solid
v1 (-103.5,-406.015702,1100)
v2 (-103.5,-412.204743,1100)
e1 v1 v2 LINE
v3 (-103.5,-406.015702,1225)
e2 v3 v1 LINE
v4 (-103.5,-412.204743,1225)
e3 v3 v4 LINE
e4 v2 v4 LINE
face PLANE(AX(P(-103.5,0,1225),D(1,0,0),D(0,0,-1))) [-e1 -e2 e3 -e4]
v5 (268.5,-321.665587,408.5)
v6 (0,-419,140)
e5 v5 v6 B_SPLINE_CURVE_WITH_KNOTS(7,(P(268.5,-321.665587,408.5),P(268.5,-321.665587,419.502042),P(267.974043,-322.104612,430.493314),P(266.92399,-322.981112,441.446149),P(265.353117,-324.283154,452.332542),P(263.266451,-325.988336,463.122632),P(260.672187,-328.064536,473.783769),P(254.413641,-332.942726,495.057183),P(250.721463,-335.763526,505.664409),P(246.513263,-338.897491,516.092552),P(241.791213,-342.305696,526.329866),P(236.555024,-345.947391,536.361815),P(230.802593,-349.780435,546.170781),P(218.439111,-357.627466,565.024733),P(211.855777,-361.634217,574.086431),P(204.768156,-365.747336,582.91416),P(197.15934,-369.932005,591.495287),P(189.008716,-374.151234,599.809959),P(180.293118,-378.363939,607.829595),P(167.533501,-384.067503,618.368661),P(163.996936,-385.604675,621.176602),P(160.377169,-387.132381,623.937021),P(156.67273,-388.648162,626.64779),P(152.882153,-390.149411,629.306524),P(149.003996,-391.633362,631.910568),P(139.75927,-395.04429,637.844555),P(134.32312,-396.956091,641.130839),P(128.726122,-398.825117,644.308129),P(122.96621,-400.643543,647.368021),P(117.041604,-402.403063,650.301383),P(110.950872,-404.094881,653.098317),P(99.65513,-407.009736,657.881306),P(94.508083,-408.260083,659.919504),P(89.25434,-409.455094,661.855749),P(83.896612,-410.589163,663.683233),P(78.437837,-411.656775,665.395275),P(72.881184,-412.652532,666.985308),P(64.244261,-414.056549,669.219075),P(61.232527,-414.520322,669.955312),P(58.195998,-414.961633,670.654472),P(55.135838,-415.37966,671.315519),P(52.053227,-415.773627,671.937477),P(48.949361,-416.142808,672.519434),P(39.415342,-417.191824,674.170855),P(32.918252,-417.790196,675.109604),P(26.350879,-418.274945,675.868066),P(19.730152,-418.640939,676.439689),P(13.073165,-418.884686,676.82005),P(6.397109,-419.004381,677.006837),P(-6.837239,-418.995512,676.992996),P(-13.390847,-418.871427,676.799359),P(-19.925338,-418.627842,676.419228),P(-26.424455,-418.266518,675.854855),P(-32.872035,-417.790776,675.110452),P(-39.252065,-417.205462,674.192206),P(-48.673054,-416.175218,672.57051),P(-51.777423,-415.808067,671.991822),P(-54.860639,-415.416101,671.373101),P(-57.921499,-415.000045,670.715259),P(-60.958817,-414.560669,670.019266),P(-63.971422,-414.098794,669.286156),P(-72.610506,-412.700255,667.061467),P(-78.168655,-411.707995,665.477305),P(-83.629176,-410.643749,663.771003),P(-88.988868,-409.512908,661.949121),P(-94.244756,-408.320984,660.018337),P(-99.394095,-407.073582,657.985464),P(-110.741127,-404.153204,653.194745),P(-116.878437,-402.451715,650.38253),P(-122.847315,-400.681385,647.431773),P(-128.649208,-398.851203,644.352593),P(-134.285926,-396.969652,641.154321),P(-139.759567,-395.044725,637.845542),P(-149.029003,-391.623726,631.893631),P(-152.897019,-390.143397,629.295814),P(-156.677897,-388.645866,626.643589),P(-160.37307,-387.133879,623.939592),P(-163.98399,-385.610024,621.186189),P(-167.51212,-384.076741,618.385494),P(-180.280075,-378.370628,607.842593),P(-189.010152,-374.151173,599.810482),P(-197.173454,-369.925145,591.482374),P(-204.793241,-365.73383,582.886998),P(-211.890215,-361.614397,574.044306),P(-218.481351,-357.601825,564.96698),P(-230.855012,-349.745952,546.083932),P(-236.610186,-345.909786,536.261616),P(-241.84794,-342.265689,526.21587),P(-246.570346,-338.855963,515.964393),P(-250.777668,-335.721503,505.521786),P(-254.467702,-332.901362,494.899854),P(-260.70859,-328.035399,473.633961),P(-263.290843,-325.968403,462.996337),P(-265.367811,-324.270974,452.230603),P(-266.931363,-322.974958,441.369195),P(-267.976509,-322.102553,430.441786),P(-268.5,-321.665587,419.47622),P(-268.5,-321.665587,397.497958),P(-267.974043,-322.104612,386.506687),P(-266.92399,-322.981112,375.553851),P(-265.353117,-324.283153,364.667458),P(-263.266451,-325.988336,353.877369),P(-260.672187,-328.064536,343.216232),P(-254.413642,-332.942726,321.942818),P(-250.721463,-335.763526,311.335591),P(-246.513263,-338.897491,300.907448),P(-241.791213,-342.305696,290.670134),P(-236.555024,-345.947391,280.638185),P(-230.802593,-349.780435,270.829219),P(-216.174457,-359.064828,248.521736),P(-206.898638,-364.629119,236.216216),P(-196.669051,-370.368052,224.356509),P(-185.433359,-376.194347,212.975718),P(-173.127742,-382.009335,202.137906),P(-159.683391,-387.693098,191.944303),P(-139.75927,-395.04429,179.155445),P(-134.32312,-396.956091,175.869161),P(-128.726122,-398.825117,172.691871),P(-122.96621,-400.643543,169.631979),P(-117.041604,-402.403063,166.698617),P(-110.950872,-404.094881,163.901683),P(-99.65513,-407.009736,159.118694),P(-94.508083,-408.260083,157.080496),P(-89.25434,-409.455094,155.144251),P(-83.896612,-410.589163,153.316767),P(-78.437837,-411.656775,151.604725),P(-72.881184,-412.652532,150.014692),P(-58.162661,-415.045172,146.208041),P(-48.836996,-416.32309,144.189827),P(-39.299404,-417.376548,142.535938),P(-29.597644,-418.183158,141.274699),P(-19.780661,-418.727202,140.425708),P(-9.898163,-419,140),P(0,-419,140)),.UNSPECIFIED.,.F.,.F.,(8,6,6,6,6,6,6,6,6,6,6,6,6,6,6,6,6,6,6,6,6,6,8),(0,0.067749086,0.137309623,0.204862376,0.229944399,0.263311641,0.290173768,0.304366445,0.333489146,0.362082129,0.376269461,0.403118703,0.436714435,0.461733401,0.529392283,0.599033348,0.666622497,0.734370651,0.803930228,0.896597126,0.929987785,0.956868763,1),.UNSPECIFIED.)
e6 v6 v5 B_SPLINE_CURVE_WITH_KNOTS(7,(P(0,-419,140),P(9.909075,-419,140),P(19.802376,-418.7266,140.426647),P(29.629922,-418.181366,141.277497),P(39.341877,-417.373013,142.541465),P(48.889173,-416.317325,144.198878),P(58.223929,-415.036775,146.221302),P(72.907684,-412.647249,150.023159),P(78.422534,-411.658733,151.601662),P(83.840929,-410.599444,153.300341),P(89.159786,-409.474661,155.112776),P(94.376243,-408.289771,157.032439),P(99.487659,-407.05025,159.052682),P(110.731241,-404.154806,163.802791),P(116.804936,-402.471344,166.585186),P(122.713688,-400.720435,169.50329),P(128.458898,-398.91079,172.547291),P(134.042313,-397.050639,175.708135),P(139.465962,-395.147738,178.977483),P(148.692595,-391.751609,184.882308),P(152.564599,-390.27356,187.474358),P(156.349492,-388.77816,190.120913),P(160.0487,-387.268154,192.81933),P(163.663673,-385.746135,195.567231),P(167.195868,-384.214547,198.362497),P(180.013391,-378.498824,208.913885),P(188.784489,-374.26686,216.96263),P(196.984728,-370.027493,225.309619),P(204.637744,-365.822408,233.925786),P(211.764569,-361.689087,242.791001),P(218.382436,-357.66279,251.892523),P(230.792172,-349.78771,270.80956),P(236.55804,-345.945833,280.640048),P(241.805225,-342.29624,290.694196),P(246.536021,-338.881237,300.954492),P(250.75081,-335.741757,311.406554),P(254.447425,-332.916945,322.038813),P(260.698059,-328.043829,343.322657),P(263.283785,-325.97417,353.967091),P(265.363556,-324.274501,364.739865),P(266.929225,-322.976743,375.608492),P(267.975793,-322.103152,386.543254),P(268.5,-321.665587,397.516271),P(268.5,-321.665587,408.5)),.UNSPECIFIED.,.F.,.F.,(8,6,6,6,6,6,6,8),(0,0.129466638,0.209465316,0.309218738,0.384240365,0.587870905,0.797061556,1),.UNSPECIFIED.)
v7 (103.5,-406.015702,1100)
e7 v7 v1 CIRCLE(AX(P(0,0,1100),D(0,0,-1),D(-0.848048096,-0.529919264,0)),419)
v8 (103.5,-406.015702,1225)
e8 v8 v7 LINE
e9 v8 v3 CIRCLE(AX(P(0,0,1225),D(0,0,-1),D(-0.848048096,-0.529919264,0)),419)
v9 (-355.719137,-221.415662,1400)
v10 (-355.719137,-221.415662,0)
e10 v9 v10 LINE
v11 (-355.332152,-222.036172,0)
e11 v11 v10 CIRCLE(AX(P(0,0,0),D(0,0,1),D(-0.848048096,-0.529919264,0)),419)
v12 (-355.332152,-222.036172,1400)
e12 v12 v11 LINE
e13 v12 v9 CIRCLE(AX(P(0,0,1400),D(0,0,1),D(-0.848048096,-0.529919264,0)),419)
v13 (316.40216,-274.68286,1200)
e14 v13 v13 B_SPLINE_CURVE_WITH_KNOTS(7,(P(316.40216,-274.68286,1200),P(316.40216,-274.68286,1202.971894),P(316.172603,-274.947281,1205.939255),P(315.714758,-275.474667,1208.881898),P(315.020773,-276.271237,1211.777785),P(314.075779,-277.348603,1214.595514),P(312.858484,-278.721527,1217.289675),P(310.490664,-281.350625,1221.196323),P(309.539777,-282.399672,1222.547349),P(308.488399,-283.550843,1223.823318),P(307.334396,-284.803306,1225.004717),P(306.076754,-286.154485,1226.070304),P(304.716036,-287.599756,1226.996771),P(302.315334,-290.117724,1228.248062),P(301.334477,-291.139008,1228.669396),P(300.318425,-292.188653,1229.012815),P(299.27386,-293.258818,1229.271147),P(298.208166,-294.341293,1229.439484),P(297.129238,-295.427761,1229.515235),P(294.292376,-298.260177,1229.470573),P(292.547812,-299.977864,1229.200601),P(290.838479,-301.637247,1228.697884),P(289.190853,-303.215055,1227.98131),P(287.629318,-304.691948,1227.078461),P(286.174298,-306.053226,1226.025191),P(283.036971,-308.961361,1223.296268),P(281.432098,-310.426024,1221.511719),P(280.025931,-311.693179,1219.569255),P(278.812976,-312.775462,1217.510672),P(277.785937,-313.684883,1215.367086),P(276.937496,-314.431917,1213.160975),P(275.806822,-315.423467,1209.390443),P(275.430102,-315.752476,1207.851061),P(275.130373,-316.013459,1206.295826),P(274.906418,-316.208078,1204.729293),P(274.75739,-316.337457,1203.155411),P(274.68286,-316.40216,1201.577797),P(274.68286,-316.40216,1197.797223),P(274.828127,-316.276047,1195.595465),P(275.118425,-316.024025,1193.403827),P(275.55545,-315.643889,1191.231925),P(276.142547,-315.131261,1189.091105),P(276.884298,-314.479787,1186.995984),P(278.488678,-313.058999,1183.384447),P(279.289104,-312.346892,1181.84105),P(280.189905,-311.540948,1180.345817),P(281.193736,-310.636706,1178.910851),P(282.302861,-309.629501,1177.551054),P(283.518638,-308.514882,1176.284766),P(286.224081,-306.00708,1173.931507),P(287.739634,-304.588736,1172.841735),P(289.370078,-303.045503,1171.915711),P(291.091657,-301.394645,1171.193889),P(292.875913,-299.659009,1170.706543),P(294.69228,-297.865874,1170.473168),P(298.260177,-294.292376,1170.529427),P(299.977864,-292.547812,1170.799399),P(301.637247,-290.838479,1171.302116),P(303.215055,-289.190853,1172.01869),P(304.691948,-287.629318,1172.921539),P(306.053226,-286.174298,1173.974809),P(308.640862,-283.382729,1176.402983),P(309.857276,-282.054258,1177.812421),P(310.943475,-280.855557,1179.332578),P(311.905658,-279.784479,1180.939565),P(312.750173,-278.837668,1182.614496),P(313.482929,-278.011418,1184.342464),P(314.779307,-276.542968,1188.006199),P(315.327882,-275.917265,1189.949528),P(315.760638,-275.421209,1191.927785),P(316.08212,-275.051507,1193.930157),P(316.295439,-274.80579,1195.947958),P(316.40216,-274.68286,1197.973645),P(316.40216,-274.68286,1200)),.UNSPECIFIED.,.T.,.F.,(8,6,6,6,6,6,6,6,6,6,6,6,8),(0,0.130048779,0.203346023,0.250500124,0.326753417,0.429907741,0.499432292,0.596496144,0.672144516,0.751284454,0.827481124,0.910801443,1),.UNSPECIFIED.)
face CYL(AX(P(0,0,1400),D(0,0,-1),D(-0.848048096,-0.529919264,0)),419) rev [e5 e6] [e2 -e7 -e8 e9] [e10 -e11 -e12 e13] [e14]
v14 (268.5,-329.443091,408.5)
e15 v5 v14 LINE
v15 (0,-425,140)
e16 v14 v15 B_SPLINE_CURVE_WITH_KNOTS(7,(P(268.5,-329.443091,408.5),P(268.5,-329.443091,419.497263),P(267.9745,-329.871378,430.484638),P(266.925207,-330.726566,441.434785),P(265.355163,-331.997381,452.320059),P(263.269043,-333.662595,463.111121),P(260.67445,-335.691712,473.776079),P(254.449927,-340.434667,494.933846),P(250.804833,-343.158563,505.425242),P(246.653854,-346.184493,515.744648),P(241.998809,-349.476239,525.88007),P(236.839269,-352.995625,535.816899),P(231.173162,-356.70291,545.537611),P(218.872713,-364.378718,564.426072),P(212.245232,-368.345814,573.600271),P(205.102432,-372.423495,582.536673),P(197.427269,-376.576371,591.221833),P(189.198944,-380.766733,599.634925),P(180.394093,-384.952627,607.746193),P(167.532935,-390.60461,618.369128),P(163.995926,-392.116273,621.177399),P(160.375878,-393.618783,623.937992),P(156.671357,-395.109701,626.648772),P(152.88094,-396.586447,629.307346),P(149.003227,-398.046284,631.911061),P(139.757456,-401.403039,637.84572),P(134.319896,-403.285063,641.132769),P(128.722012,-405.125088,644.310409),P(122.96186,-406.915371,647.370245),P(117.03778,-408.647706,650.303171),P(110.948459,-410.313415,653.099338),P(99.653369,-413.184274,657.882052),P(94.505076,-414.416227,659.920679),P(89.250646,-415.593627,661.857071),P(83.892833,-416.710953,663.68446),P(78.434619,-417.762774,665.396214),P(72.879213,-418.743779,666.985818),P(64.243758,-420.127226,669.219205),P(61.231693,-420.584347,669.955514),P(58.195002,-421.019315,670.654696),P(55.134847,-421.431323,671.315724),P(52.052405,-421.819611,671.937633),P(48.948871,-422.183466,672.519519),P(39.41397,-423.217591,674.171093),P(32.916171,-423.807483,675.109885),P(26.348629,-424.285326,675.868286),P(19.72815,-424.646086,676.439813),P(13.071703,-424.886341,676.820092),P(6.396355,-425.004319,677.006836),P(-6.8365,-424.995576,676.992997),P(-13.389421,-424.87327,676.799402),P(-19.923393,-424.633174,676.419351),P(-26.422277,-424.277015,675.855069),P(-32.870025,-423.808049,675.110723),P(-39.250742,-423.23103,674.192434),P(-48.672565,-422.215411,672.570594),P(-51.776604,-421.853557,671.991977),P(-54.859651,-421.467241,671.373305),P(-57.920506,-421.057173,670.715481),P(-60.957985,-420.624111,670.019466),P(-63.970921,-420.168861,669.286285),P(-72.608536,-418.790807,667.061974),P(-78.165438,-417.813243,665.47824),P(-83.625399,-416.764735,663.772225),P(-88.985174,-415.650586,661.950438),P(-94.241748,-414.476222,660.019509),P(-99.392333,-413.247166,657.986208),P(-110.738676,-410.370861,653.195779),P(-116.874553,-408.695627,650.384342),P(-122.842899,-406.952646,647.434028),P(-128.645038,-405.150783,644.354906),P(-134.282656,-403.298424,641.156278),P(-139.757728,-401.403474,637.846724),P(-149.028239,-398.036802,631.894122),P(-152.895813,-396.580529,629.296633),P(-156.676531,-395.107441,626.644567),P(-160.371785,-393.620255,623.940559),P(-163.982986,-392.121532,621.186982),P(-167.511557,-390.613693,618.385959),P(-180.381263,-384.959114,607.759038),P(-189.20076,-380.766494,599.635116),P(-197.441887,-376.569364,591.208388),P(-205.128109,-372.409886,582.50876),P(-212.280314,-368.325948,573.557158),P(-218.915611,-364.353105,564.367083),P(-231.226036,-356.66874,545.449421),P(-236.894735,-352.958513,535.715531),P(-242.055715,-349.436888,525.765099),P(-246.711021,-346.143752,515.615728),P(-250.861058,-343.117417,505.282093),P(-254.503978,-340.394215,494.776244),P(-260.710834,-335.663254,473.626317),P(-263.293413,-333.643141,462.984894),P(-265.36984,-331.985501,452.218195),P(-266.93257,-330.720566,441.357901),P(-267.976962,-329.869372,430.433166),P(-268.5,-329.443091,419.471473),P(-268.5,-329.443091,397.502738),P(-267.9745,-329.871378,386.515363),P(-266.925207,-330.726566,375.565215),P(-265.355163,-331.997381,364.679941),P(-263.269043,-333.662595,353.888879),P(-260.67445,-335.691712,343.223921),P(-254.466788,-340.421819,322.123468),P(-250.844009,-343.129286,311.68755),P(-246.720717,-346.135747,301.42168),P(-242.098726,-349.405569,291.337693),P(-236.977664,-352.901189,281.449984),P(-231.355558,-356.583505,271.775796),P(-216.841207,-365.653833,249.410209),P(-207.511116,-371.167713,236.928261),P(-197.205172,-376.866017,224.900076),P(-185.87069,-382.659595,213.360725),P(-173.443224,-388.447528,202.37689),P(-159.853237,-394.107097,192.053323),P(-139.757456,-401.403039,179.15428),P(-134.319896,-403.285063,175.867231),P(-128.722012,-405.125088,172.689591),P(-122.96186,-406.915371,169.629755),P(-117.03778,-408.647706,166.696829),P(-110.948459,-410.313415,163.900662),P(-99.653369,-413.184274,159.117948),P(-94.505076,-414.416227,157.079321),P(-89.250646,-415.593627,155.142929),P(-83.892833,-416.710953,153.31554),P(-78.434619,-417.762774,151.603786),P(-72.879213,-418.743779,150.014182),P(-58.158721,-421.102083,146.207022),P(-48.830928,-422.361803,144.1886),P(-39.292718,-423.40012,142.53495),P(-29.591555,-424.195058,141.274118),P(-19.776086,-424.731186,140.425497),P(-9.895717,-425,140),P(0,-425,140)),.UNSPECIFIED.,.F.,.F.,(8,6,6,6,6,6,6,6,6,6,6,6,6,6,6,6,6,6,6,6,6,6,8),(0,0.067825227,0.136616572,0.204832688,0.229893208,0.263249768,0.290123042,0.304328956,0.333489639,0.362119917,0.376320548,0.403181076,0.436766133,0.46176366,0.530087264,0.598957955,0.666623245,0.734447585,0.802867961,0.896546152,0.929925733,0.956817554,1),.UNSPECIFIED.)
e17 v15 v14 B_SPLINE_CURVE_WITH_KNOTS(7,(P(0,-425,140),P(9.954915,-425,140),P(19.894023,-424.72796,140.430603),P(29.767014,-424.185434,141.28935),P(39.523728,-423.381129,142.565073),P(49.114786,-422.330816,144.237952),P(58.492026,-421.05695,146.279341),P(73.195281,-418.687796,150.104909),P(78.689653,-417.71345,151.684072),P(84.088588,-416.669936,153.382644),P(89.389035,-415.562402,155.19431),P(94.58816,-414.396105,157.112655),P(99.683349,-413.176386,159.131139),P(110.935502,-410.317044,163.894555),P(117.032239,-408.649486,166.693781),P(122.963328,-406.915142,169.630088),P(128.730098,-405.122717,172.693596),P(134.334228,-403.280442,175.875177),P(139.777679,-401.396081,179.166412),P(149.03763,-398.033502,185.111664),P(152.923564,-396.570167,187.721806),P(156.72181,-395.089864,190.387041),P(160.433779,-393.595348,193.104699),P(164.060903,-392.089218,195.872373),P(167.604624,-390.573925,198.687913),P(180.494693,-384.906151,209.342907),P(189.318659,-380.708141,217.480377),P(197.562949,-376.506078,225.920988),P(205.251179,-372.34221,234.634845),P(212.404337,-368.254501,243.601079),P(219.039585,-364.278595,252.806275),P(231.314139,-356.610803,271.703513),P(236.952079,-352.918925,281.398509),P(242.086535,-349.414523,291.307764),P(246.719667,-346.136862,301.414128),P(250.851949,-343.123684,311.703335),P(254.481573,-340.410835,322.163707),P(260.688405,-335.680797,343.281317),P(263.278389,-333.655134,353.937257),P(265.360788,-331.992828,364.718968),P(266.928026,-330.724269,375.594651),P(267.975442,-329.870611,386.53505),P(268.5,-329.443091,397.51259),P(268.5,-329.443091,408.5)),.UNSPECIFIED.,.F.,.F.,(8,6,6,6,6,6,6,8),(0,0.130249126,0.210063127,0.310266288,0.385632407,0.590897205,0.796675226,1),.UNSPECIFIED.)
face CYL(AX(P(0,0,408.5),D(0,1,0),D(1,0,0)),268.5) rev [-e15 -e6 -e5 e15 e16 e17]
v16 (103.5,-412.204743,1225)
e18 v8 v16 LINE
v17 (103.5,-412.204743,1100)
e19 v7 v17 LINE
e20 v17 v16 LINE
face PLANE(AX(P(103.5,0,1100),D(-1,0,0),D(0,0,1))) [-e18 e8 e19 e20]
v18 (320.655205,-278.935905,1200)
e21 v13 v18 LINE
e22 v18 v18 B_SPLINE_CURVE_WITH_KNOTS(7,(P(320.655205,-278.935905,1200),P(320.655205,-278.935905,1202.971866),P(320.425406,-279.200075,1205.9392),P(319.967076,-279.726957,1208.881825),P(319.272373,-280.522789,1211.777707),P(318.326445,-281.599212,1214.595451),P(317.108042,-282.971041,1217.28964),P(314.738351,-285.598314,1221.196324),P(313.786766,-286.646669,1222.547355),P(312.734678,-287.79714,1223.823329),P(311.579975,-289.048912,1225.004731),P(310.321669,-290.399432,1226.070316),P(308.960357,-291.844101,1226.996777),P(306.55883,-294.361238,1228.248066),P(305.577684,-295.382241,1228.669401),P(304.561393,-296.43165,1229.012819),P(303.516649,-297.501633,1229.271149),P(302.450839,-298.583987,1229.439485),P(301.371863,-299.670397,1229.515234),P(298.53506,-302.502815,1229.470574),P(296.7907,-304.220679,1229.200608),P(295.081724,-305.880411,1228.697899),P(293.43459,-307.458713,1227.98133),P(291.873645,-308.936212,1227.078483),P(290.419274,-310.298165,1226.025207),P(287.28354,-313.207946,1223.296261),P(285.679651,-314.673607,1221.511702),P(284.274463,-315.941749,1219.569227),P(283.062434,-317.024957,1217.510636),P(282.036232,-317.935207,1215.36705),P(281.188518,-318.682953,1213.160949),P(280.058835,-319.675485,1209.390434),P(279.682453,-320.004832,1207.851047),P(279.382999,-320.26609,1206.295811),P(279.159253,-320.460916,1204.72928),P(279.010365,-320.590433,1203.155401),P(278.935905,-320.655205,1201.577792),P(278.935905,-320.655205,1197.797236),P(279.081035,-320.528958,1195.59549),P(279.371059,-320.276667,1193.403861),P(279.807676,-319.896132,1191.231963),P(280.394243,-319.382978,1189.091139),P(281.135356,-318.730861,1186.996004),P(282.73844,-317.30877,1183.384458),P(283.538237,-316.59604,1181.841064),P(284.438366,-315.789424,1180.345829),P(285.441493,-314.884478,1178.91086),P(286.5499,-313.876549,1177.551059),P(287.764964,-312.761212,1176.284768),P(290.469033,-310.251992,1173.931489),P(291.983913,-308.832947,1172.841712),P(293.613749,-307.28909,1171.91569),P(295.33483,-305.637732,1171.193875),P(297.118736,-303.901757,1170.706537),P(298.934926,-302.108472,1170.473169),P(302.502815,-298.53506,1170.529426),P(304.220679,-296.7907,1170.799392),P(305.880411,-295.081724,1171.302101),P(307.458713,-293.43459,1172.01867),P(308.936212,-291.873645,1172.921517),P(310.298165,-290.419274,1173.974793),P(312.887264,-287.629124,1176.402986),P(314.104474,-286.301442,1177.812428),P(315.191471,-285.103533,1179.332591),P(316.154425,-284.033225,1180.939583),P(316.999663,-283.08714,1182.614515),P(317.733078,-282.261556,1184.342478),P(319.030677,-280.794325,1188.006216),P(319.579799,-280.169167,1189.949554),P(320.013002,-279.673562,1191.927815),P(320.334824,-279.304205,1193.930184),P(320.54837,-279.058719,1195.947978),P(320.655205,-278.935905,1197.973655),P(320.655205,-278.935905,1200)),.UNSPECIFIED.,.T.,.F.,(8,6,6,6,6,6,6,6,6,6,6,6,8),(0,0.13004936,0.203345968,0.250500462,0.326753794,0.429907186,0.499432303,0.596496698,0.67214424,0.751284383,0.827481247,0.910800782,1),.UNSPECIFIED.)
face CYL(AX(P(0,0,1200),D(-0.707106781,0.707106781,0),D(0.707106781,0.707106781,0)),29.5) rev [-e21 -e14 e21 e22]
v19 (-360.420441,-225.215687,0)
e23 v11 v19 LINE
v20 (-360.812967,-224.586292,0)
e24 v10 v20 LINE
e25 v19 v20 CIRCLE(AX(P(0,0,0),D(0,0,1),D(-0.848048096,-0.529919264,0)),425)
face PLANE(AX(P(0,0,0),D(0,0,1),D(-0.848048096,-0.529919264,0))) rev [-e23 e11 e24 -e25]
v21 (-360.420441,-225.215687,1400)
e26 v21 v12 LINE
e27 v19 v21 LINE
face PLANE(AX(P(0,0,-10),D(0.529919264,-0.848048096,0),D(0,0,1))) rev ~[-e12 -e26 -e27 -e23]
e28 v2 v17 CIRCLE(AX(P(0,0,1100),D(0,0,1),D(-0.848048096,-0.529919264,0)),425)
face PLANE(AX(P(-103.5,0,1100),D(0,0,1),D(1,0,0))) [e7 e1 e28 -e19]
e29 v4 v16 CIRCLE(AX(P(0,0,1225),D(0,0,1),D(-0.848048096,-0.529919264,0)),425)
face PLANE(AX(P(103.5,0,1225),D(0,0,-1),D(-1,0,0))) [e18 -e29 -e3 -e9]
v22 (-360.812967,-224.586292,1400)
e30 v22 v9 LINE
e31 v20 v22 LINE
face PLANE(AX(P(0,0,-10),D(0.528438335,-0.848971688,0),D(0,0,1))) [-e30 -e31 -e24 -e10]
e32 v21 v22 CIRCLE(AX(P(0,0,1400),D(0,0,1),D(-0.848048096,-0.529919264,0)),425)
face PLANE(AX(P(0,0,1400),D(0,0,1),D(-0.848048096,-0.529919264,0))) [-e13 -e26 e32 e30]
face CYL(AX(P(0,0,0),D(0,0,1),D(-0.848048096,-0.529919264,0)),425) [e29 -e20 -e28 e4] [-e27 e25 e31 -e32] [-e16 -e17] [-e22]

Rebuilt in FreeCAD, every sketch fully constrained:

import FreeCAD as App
import Part
import Sketcher


def add_polygon(sketch, points):
    """Adds a closed chain of lines whose ends are joined by coincident constraints."""
    first, n = sketch.GeometryCount, len(points)
    for a, b in zip(points, points[1:] + points[:1]):
        sketch.addGeometry(Part.LineSegment(App.Vector(*a, 0), App.Vector(*b, 0)), False)
    for i in range(n):
        sketch.addConstraint(Sketcher.Constraint("Coincident", first + i, 2, first + (i + 1) % n, 1))

doc = App.newDocument("Part")
body = doc.addObject("PartDesign::Body", "Body")

# Sketch on an angled plane
sketch1 = body.newObject("Sketcher::SketchObject", "Sketch")
sketch1.Placement = App.Placement(App.Vector(0, 0, -10), App.Rotation(App.Vector(0, 0, 1), App.Vector(-0.848048096, -0.529919264, 0), App.Vector(0.529919264, -0.848048096, 0), "ZXY"))
add_polygon(sketch1, [(10, 419), (1410, 419), (1410, 425), (10, 425)])  # lines 0-3
sketch1.addConstraint([
    Sketcher.Constraint("Horizontal", 0),
    Sketcher.Constraint("Vertical", 1),
    Sketcher.Constraint("Horizontal", 2),
    Sketcher.Constraint("Vertical", 3),
    Sketcher.Constraint("DistanceX", 0, 1, 0, 2, 1400.0),
    Sketcher.Constraint("DistanceY", 1, 1, 1, 2, 6.0),
    Sketcher.Constraint("DistanceX", -1, 1, 0, 2, 1410.0),
    Sketcher.Constraint("DistanceY", -1, 1, 0, 2, 419.0),
])
revolution = body.newObject("PartDesign::Revolution", "Revolution")
revolution.Profile = sketch1
revolution.ReferenceAxis = (sketch1, ["H_Axis"])
revolution.Angle = 359.9

# Sketch on an angled plane
sketch2 = body.newObject("Sketcher::SketchObject", "Sketch001")
sketch2.Placement = App.Placement(App.Vector(0, 0, 1200), App.Rotation(App.Vector(0.707106781, 0.707106781, 0), App.Vector(0, 0, 0.999999999), App.Vector(0.707106781, -0.707106781, 0), "ZXY"))
sketch2.addGeometry(Part.Circle(App.Vector(0, 0, 0), App.Vector(0, 0, 1), 29.5), False)
sketch2.addConstraint([
    Sketcher.Constraint("Coincident", 0, 3, -1, 1),
    Sketcher.Constraint("Diameter", 0, 59.0),
])
pocket1 = body.newObject("PartDesign::Pocket", "Pocket")
pocket1.Profile = sketch2
pocket1.Type = "ThroughAll"
pocket1.Reversed = True

# Sketch on XZ plane
sketch3 = body.newObject("Sketcher::SketchObject", "Sketch002")
sketch3.AttachmentSupport = (doc.getObject("XZ_Plane"), [""])
sketch3.MapMode = "FlatFace"
sketch3.addGeometry(Part.Circle(App.Vector(0, 408.5, 0), App.Vector(0, 0, 1), 268.5), False)
sketch3.addConstraint([
    Sketcher.Constraint("PointOnObject", 0, 3, -2),
    Sketcher.Constraint("Diameter", 0, 537.0),
    Sketcher.Constraint("DistanceY", -1, 1, 0, 3, 408.5),
])
pocket2 = body.newObject("PartDesign::Pocket", "Pocket001")
pocket2.Profile = sketch3
pocket2.Type = "ThroughAll"
pocket2.Reversed = True

# Sketch on XZ plane
sketch4 = body.newObject("Sketcher::SketchObject", "Sketch003")
sketch4.AttachmentSupport = (doc.getObject("XZ_Plane"), [""])
sketch4.MapMode = "FlatFace"
add_polygon(sketch4, [(-103.5, 1225), (-103.5, 1100), (103.5, 1100), (103.5, 1225)])  # lines 0-3
sketch4.addConstraint([
    Sketcher.Constraint("Vertical", 0),
    Sketcher.Constraint("Horizontal", 1),
    Sketcher.Constraint("Vertical", 2),
    Sketcher.Constraint("Horizontal", 3),
    Sketcher.Constraint("DistanceX", 1, 1, 1, 2, 207.0),
    Sketcher.Constraint("DistanceY", 0, 2, 0, 1, 125.0),
    Sketcher.Constraint("DistanceY", -1, 1, 0, 2, 1100.0),
    Sketcher.Constraint("DistanceX", 0, 2, -1, 1, 103.5),
])
pocket3 = body.newObject("PartDesign::Pocket", "Pocket002")
pocket3.Profile = sketch4
pocket3.Type = "ThroughAll"
pocket3.Reversed = True

doc.recompute()
